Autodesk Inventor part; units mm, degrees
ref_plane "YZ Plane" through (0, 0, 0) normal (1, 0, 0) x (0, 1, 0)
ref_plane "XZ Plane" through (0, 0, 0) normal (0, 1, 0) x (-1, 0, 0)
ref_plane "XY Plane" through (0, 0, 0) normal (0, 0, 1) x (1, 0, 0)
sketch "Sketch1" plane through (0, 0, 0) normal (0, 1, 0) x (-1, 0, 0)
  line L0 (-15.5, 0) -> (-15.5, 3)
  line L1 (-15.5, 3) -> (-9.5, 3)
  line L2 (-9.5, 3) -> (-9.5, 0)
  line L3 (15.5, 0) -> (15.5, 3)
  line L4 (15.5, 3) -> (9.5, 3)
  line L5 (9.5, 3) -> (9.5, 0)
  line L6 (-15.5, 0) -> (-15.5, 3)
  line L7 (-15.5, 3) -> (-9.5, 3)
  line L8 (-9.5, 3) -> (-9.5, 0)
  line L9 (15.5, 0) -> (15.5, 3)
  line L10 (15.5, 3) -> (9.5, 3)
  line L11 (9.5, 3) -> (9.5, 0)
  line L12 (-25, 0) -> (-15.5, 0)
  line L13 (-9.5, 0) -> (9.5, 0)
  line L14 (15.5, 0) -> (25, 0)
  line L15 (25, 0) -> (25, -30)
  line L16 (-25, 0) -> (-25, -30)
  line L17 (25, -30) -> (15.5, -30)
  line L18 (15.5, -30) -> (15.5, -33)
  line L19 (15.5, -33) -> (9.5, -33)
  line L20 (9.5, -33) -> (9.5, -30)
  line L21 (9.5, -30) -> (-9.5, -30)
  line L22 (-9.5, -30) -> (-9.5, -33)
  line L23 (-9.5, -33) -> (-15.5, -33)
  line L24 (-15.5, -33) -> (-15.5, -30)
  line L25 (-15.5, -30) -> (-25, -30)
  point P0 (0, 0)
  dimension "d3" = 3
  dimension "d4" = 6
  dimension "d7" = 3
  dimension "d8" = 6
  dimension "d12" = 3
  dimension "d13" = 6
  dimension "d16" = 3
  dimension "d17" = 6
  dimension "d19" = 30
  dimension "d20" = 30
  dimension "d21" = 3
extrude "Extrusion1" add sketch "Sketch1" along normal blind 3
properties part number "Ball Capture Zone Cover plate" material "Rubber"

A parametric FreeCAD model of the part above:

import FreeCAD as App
import Part
import Sketcher

doc = App.newDocument("Part")
params = doc.addObject("Spreadsheet::Sheet", "Params")
for row, (alias, value) in enumerate([
    ("sketch1_width", "6 mm"),
    ("sketch1_height", "3 mm"),
    ("sketch1_height2", "30 mm"),
    ("sketch1_width2", "19 mm"),
    ("sketch1_width3", "9.5 mm"),
    ("pad1_length", "3 mm"),
], start=1):
    params.set(f"A{row}", alias)
    params.set(f"B{row}", "=" + value)
    params.setAlias(f"B{row}", alias)

body = doc.addObject("PartDesign::Body", "Body")

# Sketch on XZ plane
sketch1 = doc.addObject("Sketcher::SketchObject", "Sketch")
body.addObject(sketch1)
sketch1.AttachmentSupport = (doc.XZ_Plane, [""])
sketch1.MapMode = "FlatFace"
sketch1.addGeometry(Part.LineSegment(App.Vector(15.5, 3, 0), App.Vector(15.5, 0, 0)), False)
sketch1.addGeometry(Part.LineSegment(App.Vector(15.5, 0, 0), App.Vector(25, 0, 0)), False)
sketch1.addGeometry(Part.LineSegment(App.Vector(25, 0, 0), App.Vector(25, -30, 0)), False)
sketch1.addGeometry(Part.LineSegment(App.Vector(25, -30, 0), App.Vector(15.5, -30, 0)), False)
sketch1.addGeometry(Part.LineSegment(App.Vector(15.5, -30, 0), App.Vector(15.5, -33, 0)), False)
sketch1.addGeometry(Part.LineSegment(App.Vector(15.5, -33, 0), App.Vector(9.5, -33, 0)), False)
sketch1.addGeometry(Part.LineSegment(App.Vector(9.5, -33, 0), App.Vector(9.5, -30, 0)), False)
sketch1.addGeometry(Part.LineSegment(App.Vector(9.5, -30, 0), App.Vector(-9.5, -30, 0)), False)
sketch1.addGeometry(Part.LineSegment(App.Vector(-9.5, -30, 0), App.Vector(-9.5, -33, 0)), False)
sketch1.addGeometry(Part.LineSegment(App.Vector(-9.5, -33, 0), App.Vector(-15.5, -33, 0)), False)
sketch1.addGeometry(Part.LineSegment(App.Vector(-15.5, -33, 0), App.Vector(-15.5, -30, 0)), False)
sketch1.addGeometry(Part.LineSegment(App.Vector(-15.5, -30, 0), App.Vector(-25, -30, 0)), False)
sketch1.addGeometry(Part.LineSegment(App.Vector(-25, -30, 0), App.Vector(-25, 0, 0)), False)
sketch1.addGeometry(Part.LineSegment(App.Vector(-25, 0, 0), App.Vector(-15.5, 0, 0)), False)
sketch1.addGeometry(Part.LineSegment(App.Vector(-15.5, 0, 0), App.Vector(-15.5, 3, 0)), False)
sketch1.addGeometry(Part.LineSegment(App.Vector(-15.5, 3, 0), App.Vector(-9.5, 3, 0)), False)
sketch1.addGeometry(Part.LineSegment(App.Vector(-9.5, 3, 0), App.Vector(-9.5, 0, 0)), False)
sketch1.addGeometry(Part.LineSegment(App.Vector(-9.5, 0, 0), App.Vector(9.5, 0, 0)), False)
sketch1.addGeometry(Part.LineSegment(App.Vector(9.5, 0, 0), App.Vector(9.5, 3, 0)), False)
sketch1.addGeometry(Part.LineSegment(App.Vector(9.5, 3, 0), App.Vector(15.5, 3, 0)), False)
sketch1.addConstraint(Sketcher.Constraint("Coincident", 0, 2, 1, 1))
sketch1.addConstraint(Sketcher.Constraint("Coincident", 1, 2, 2, 1))
sketch1.addConstraint(Sketcher.Constraint("Coincident", 2, 2, 3, 1))
sketch1.addConstraint(Sketcher.Constraint("Coincident", 3, 2, 4, 1))
sketch1.addConstraint(Sketcher.Constraint("Coincident", 4, 2, 5, 1))
sketch1.addConstraint(Sketcher.Constraint("Coincident", 5, 2, 6, 1))
sketch1.addConstraint(Sketcher.Constraint("Coincident", 6, 2, 7, 1))
sketch1.addConstraint(Sketcher.Constraint("Coincident", 7, 2, 8, 1))
sketch1.addConstraint(Sketcher.Constraint("Coincident", 8, 2, 9, 1))
sketch1.addConstraint(Sketcher.Constraint("Coincident", 9, 2, 10, 1))
sketch1.addConstraint(Sketcher.Constraint("Coincident", 10, 2, 11, 1))
sketch1.addConstraint(Sketcher.Constraint("Coincident", 11, 2, 12, 1))
sketch1.addConstraint(Sketcher.Constraint("Coincident", 12, 2, 13, 1))
sketch1.addConstraint(Sketcher.Constraint("Coincident", 13, 2, 14, 1))
sketch1.addConstraint(Sketcher.Constraint("Coincident", 14, 2, 15, 1))
sketch1.addConstraint(Sketcher.Constraint("Coincident", 15, 2, 16, 1))
sketch1.addConstraint(Sketcher.Constraint("Coincident", 16, 2, 17, 1))
sketch1.addConstraint(Sketcher.Constraint("Coincident", 17, 2, 18, 1))
sketch1.addConstraint(Sketcher.Constraint("Coincident", 18, 2, 19, 1))
sketch1.addConstraint(Sketcher.Constraint("Coincident", 19, 2, 0, 1))
sketch1.addConstraint(Sketcher.Constraint("Vertical", 0))
sketch1.addConstraint(Sketcher.Constraint("Horizontal", 1))
sketch1.addConstraint(Sketcher.Constraint("Vertical", 2))
sketch1.addConstraint(Sketcher.Constraint("Horizontal", 3))
sketch1.addConstraint(Sketcher.Constraint("Vertical", 4))
sketch1.addConstraint(Sketcher.Constraint("Horizontal", 5))
sketch1.addConstraint(Sketcher.Constraint("Vertical", 6))
sketch1.addConstraint(Sketcher.Constraint("Horizontal", 7))
sketch1.addConstraint(Sketcher.Constraint("Vertical", 8))
sketch1.addConstraint(Sketcher.Constraint("Horizontal", 9))
sketch1.addConstraint(Sketcher.Constraint("Vertical", 10))
sketch1.addConstraint(Sketcher.Constraint("Horizontal", 11))
sketch1.addConstraint(Sketcher.Constraint("Vertical", 12))
sketch1.addConstraint(Sketcher.Constraint("Horizontal", 13))
sketch1.addConstraint(Sketcher.Constraint("Vertical", 14))
sketch1.addConstraint(Sketcher.Constraint("Horizontal", 15))
sketch1.addConstraint(Sketcher.Constraint("Vertical", 16))
sketch1.addConstraint(Sketcher.Constraint("Horizontal", 17))
sketch1.addConstraint(Sketcher.Constraint("Vertical", 18))
sketch1.addConstraint(Sketcher.Constraint("Horizontal", 19))
sketch1.addConstraint(Sketcher.Constraint("Symmetric", 1, 2, 12, 2, -1, 1))
sketch1.addConstraint(Sketcher.Constraint("Symmetric", 16, 2, 17, 2, -1, 1))
sketch1.addConstraint(Sketcher.Constraint("Symmetric", 5, 2, 8, 2, -2))
sketch1.addConstraint(Sketcher.Constraint("Symmetric", 3, 2, 10, 2, -2))
sketch1.addConstraint(Sketcher.Constraint("Symmetric", 0, 2, 13, 2, -2))
sketch1.addConstraint(Sketcher.Constraint("Horizontal", 3, 2, 6, 2))
sketch1.addConstraint(Sketcher.Constraint("Horizontal", 15, 2, 18, 2))
sketch1.addConstraint(Sketcher.Constraint("Vertical", 0, 2, 3, 2))
sketch1.addConstraint(Sketcher.Constraint("Vertical", 8, 2, 15, 2))
sketch1.addConstraint(Sketcher.Constraint("Equal", 0, 4))
sketch1.addConstraint(Sketcher.Constraint("DistanceX", 5, 2, 5, 1, 6.0))
sketch1.addConstraint(Sketcher.Constraint("DistanceY", 0, 2, 0, 1, 3.0))
sketch1.addConstraint(Sketcher.Constraint("DistanceY", 2, 2, 2, 1, 30.0))
sketch1.addConstraint(Sketcher.Constraint("DistanceX", 7, 2, 7, 1, 19.0))
sketch1.addConstraint(Sketcher.Constraint("DistanceX", 1, 1, 1, 2, 9.5))
sketch1.setExpression("Constraints[50]", "Params.sketch1_width")
sketch1.setExpression("Constraints[51]", "Params.sketch1_height")
sketch1.setExpression("Constraints[52]", "Params.sketch1_height2")
sketch1.setExpression("Constraints[53]", "Params.sketch1_width2")
sketch1.setExpression("Constraints[54]", "Params.sketch1_width3")
pad1 = doc.addObject("PartDesign::Pad", "Pad")
body.addObject(pad1)
pad1.Profile = sketch1
pad1.setExpression("Length", "Params.pad1_length")
pad1.Reversed = True

doc.recompute()
